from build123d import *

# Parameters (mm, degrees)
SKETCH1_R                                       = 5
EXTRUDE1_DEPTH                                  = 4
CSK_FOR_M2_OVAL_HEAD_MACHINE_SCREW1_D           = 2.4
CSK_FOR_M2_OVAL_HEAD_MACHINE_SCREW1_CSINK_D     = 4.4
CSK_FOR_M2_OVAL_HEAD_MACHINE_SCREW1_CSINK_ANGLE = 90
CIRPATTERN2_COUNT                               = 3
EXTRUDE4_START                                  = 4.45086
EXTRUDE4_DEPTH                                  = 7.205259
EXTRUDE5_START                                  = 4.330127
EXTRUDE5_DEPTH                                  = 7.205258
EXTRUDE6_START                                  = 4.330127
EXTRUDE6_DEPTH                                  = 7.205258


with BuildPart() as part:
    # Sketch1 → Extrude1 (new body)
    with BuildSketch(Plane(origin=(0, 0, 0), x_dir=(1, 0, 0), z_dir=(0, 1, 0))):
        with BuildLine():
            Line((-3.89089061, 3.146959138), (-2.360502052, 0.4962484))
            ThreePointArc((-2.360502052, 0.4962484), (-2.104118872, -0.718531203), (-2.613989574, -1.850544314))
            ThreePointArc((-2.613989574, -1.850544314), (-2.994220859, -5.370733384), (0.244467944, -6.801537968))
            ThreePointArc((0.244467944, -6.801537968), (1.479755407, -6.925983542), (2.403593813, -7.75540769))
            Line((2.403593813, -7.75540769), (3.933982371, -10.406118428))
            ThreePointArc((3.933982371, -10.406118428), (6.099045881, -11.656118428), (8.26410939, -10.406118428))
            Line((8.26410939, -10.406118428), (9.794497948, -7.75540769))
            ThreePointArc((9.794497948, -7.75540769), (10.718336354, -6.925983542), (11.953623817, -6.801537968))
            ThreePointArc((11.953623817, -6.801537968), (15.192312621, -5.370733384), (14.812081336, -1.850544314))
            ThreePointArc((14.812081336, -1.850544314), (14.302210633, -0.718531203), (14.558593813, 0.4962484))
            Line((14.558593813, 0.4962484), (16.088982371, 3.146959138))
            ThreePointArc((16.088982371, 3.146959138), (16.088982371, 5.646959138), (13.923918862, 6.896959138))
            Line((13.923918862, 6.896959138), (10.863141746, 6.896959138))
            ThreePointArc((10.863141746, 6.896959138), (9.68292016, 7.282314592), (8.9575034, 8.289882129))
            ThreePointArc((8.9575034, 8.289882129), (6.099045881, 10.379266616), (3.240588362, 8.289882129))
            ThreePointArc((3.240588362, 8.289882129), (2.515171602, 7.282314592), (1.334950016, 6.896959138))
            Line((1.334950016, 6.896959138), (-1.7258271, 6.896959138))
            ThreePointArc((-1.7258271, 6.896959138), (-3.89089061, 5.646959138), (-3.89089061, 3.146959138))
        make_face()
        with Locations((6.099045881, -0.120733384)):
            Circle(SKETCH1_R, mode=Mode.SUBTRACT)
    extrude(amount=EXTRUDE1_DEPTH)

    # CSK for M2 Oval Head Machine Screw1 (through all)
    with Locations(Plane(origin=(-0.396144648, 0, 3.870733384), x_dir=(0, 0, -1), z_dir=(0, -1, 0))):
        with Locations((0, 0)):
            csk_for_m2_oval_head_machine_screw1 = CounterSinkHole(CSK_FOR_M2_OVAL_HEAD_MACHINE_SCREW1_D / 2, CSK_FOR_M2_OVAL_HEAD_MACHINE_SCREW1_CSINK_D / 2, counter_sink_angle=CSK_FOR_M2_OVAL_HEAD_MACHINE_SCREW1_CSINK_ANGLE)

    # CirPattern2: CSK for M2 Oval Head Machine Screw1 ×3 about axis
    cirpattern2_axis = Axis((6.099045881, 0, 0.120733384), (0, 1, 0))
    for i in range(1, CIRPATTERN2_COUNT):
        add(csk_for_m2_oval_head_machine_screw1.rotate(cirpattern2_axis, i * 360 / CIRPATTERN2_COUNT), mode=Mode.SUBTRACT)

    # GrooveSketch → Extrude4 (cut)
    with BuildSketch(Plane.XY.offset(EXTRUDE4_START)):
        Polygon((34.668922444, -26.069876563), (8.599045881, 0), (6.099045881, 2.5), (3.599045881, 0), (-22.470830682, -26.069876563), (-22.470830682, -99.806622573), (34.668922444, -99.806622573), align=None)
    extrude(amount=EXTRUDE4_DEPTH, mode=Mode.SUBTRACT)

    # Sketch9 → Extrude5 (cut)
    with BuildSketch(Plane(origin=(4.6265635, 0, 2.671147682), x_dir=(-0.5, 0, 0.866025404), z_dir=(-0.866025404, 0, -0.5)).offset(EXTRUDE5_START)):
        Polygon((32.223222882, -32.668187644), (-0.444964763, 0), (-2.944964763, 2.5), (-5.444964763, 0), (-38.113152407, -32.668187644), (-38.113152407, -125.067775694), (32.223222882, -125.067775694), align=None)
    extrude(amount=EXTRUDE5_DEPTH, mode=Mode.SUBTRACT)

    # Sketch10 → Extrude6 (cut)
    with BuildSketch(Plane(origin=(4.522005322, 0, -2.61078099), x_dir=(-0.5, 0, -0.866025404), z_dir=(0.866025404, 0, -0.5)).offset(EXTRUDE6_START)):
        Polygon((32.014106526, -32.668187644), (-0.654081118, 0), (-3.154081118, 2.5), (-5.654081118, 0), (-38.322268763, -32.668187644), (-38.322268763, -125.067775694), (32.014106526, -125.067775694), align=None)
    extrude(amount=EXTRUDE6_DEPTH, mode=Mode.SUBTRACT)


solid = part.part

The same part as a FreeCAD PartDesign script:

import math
import FreeCAD as App
import Part
import Sketcher

V = App.Vector
Q = App.Units.Quantity


def add_polygon(sketch, points):
    """Adds a closed chain of lines whose ends are joined by coincident constraints."""
    first, n = sketch.GeometryCount, len(points)
    for a, b in zip(points, points[1:] + points[:1]):
        sketch.addGeometry(Part.LineSegment(App.Vector(*a, 0), App.Vector(*b, 0)), False)
    for i in range(n):
        sketch.addConstraint(Sketcher.Constraint("Coincident", first + i, 2, first + (i + 1) % n, 1))

doc = App.newDocument("Part")
body = doc.addObject("PartDesign::Body", "Body")

# Sketch on XZ plane
sketch1 = body.newObject("Sketcher::SketchObject", "Sketch")
sketch1.AttachmentSupport = (doc.getObject("XZ_Plane"), [""])
sketch1.MapMode = "FlatFace"
sketch1.addGeometry(Part.LineSegment(V(-3.890891, -3.146959, 0), V(-2.360502, -0.496248, 0)), False)
sketch1.addGeometry(Part.ArcOfCircle(Part.Circle(V(-4.092553, 0.503752, 0), V(0, 0, 1), 2), math.radians(-30), math.radians(42.329742)), False)
sketch1.addGeometry(Part.ArcOfCircle(Part.Circle(V(-0.396145, 3.870733, 0), V(0, 0, 1), 3), math.radians(77.670258), math.radians(222.329742)), False)
sketch1.addGeometry(Part.ArcOfCircle(Part.Circle(V(0.671543, 8.755408, 0), V(0, 0, 1), 2), math.radians(-102.329742), math.radians(-30)), False)
sketch1.addGeometry(Part.LineSegment(V(2.403594, 7.755408, 0), V(3.933982, 10.406118, 0)), False)
sketch1.addGeometry(Part.ArcOfCircle(Part.Circle(V(6.099046, 9.156118, 0), V(0, 0, 1), 2.5), math.radians(30), math.radians(150)), False)
sketch1.addGeometry(Part.LineSegment(V(8.264109, 10.406118, 0), V(9.794498, 7.755408, 0)), False)
sketch1.addGeometry(Part.ArcOfCircle(Part.Circle(V(11.526549, 8.755408, 0), V(0, 0, 1), 2), math.radians(-150), math.radians(-77.670258)), False)
sketch1.addGeometry(Part.ArcOfCircle(Part.Circle(V(12.594236, 3.870733, 0), V(0, 0, 1), 3), math.radians(-42.329742), math.radians(102.329742)), False)
sketch1.addGeometry(Part.ArcOfCircle(Part.Circle(V(16.290645, 0.503752, 0), V(0, 0, 1), 2), math.radians(137.670258), math.radians(210)), False)
sketch1.addGeometry(Part.LineSegment(V(14.558594, -0.496248, 0), V(16.088982, -3.146959, 0)), False)
sketch1.addGeometry(Part.ArcOfCircle(Part.Circle(V(13.923919, -4.396959, 0), V(0, 0, 1), 2.5), math.radians(-90), math.radians(30)), False)
sketch1.addGeometry(Part.LineSegment(V(13.923919, -6.896959, 0), V(10.863142, -6.896959, 0)), False)
sketch1.addGeometry(Part.ArcOfCircle(Part.Circle(V(10.863142, -8.896959, 0), V(0, 0, 1), 2), math.radians(90), math.radians(162.329742)), False)
sketch1.addGeometry(Part.ArcOfCircle(Part.Circle(V(6.099046, -7.379267, 0), V(0, 0, 1), 3), math.radians(-162.329742), math.radians(-17.670258)), False)
sketch1.addGeometry(Part.ArcOfCircle(Part.Circle(V(1.33495, -8.896959, 0), V(0, 0, 1), 2), math.radians(17.670258), math.radians(90)), False)
sketch1.addGeometry(Part.LineSegment(V(1.33495, -6.896959, 0), V(-1.725827, -6.896959, 0)), False)
sketch1.addGeometry(Part.ArcOfCircle(Part.Circle(V(-1.725827, -4.396959, 0), V(0, 0, 1), 2.5), math.radians(150), math.radians(270)), False)
sketch1.addGeometry(Part.Circle(V(6.099046, 0.120733, 0), V(0, 0, 1), 5), False)
sketch1.addConstraint(Sketcher.Constraint("Tangent", 0, 2, 1, 1))
sketch1.addConstraint(Sketcher.Constraint("Tangent", 1, 2, 2, 2))
sketch1.addConstraint(Sketcher.Constraint("Tangent", 2, 1, 3, 1))
sketch1.addConstraint(Sketcher.Constraint("Tangent", 3, 2, 4, 1))
sketch1.addConstraint(Sketcher.Constraint("Tangent", 4, 2, 5, 2))
sketch1.addConstraint(Sketcher.Constraint("Tangent", 5, 1, 6, 1))
sketch1.addConstraint(Sketcher.Constraint("Tangent", 6, 2, 7, 1))
sketch1.addConstraint(Sketcher.Constraint("Tangent", 7, 2, 8, 2))
sketch1.addConstraint(Sketcher.Constraint("Tangent", 8, 1, 9, 1))
sketch1.addConstraint(Sketcher.Constraint("Tangent", 9, 2, 10, 1))
sketch1.addConstraint(Sketcher.Constraint("Tangent", 10, 2, 11, 2))
sketch1.addConstraint(Sketcher.Constraint("Tangent", 11, 1, 12, 1))
sketch1.addConstraint(Sketcher.Constraint("Tangent", 12, 2, 13, 1))
sketch1.addConstraint(Sketcher.Constraint("Tangent", 13, 2, 14, 2))
sketch1.addConstraint(Sketcher.Constraint("Tangent", 14, 1, 15, 1))
sketch1.addConstraint(Sketcher.Constraint("Tangent", 15, 2, 16, 1))
sketch1.addConstraint(Sketcher.Constraint("Tangent", 16, 2, 17, 2))
sketch1.addConstraint(Sketcher.Constraint("Tangent", 17, 1, 0, 1))
sketch1.addConstraint(Sketcher.Constraint("Horizontal", 12))
sketch1.addConstraint(Sketcher.Constraint("Horizontal", 16))
sketch1.addConstraint(Sketcher.Constraint("Equal", 1, 3))
sketch1.addConstraint(Sketcher.Constraint("Equal", 3, 7))
sketch1.addConstraint(Sketcher.Constraint("Equal", 2, 8))
sketch1.addConstraint(Sketcher.Constraint("Equal", 7, 9))
sketch1.addConstraint(Sketcher.Constraint("Equal", 5, 11))
sketch1.addConstraint(Sketcher.Constraint("Equal", 9, 13))
sketch1.addConstraint(Sketcher.Constraint("Equal", 8, 14))
sketch1.addConstraint(Sketcher.Constraint("Equal", 13, 15))
sketch1.addConstraint(Sketcher.Constraint("Equal", 11, 17))
sketch1.addConstraint(Sketcher.Constraint("Parallel", 0, 4))
sketch1.addConstraint(Sketcher.Constraint("Parallel", 6, 10))
sketch1.addConstraint(Sketcher.Constraint("Horizontal", 3, 3, 7, 3))
sketch1.addConstraint(Sketcher.Constraint("Horizontal", 2, 3, 8, 3))
sketch1.addConstraint(Sketcher.Constraint("Horizontal", 1, 3, 9, 3))
sketch1.addConstraint(Sketcher.Constraint("Horizontal", 13, 3, 15, 3))
sketch1.addConstraint(Sketcher.Constraint("Horizontal", 4, 2, 5, 1))
sketch1.addConstraint(Sketcher.Constraint("Vertical", 5, 3, 14, 3))
sketch1.addConstraint(Sketcher.Constraint("Vertical", 14, 3, 18, 3))
sketch1.addConstraint(Sketcher.Constraint("Equal", 0, 4))
sketch1.addConstraint(Sketcher.Constraint("Diameter", 18, Q("10 mm")))
sketch1.addConstraint(Sketcher.Constraint("Radius", 1, Q("2 mm")))
sketch1.addConstraint(Sketcher.Constraint("Radius", 2, Q("3 mm")))
sketch1.addConstraint(Sketcher.Constraint("Radius", 5, Q("2.5 mm")))
sketch1.addConstraint(Sketcher.Constraint("Angle", 0, Q("60 deg")))
sketch1.addConstraint(Sketcher.Constraint("DistanceY", 14, 3, 18, 3, Q("7.5 mm")))
sketch1.addConstraint(Sketcher.Constraint("DistanceY", 14, 3, 8, 3, Q("11.25 mm")))
sketch1.addConstraint(Sketcher.Constraint("DistanceX", 1, 3, 5, 3, Q("10.191599 mm")))
sketch1.addConstraint(Sketcher.Constraint("DistanceX", 1, 3, 7, 3, Q("15.619102 mm")))
sketch1.addConstraint(Sketcher.Constraint("DistanceX", 8, 1, 10, 2, Q("1.276901 mm")))
sketch1.addConstraint(Sketcher.Constraint("DistanceY", -1, 1, 1, 3, Q("0.503752 mm")))
sketch1.addConstraint(Sketcher.Constraint("DistanceX", -1, 1, 7, 3, Q("11.526549 mm")))
pad1 = body.newObject("PartDesign::Pad", "Pad")
pad1.Profile = sketch1
pad1.Length = 4
pad1.Reversed = True

# Sketch on XZ plane
sketch2 = body.newObject("Sketcher::SketchObject", "Sketch001")
sketch2.AttachmentSupport = (doc.getObject("XZ_Plane"), [""])
sketch2.MapMode = "FlatFace"
sketch2.addGeometry(Part.Circle(V(-0.396145, 3.870733, 0), V(0, 0, 1), 1.2), False)
sketch2.addConstraint(Sketcher.Constraint("Diameter", 0, Q("2.4 mm")))
sketch2.addConstraint(Sketcher.Constraint("DistanceX", 0, 3, -1, 1, Q("0.396145 mm")))
sketch2.addConstraint(Sketcher.Constraint("DistanceY", -1, 1, 0, 3, Q("3.870733 mm")))
doc.recompute()
hole = body.newObject("PartDesign::Hole", "Hole")
hole.Profile = sketch2
hole.ThreadType = "None"
hole.Diameter = 2.4
hole.DepthType = "ThroughAll"
hole.HoleCutType = "Countersink"
hole.HoleCutDiameter = 4.4
hole.HoleCutCountersinkAngle = 90
doc.recompute()

datumline = body.newObject("PartDesign::Line", "DatumLine")
datumline.Placement = App.Placement(V(6.099046, 0, 0.120733), App.Rotation(V(0, 0, 1), V(0, 1, 0)))
polarpattern = body.newObject("PartDesign::PolarPattern", "PolarPattern")
polarpattern.Originals = [hole]
polarpattern.Axis = (datumline, [""])
polarpattern.Angle = 360
polarpattern.Occurrences = 3
body.Tip = polarpattern

# Sketch on XY plane
sketch3 = body.newObject("Sketcher::SketchObject", "Sketch002")
sketch3.AttachmentSupport = (doc.getObject("XY_Plane"), [""])
sketch3.MapMode = "FlatFace"
sketch3.AttachmentOffset = App.Placement(V(0, 0, 4.45086), App.Rotation())
add_polygon(sketch3, [(34.668922, -26.069877), (6.099046, 2.5), (-22.470831, -26.069877), (-22.470831, -99.806623), (34.668922, -99.806623)])  # lines 0-4
sketch3.addConstraint(Sketcher.Constraint("Vertical", 2))
sketch3.addConstraint(Sketcher.Constraint("Horizontal", 3))
sketch3.addConstraint(Sketcher.Constraint("Vertical", 4))
sketch3.addConstraint(Sketcher.Constraint("Perpendicular", 0, 1))
sketch3.addConstraint(Sketcher.Constraint("Horizontal", 1, 2, 4, 2))
sketch3.addConstraint(Sketcher.Constraint("Equal", 0, 1))
sketch3.addConstraint(Sketcher.Constraint("DistanceY", -1, 1, 0, 2, Q("2.5 mm")))
sketch3.addConstraint(Sketcher.Constraint("DistanceX", 3, 1, 3, 2, Q("57.139753 mm")))
sketch3.addConstraint(Sketcher.Constraint("DistanceY", 2, 2, 2, 1, Q("73.736746 mm")))
sketch3.addConstraint(Sketcher.Constraint("DistanceX", 1, 2, -1, 1, Q("22.470831 mm")))
pocket1 = body.newObject("PartDesign::Pocket", "Pocket")
pocket1.Profile = sketch3
pocket1.Length = 7.205259
pocket1.Reversed = True

# Sketch on an angled plane
sketch4 = body.newObject("Sketcher::SketchObject", "Sketch003")
sketch4.Placement = App.Placement(V(0.876564, 0, 0.506084), App.Rotation(V(-0.5, 0, 0.866025404), V(0, 1, 0), V(-0.866025404, 0, -0.5), "ZXY"))
add_polygon(sketch4, [(32.223223, -32.668188), (-0.444965, 0), (-2.944965, 2.5), (-38.113152, -32.668188), (-38.113152, -125.067776), (32.223223, -125.067776)])  # lines 0-5
sketch4.addConstraint(Sketcher.Constraint("Vertical", 3))
sketch4.addConstraint(Sketcher.Constraint("Horizontal", 4))
sketch4.addConstraint(Sketcher.Constraint("Vertical", 5))
sketch4.addConstraint(Sketcher.Constraint("PointOnObject", 0, 2, -1))
sketch4.addConstraint(Sketcher.Constraint("Parallel", 0, 1))
sketch4.addConstraint(Sketcher.Constraint("Perpendicular", 1, 2))
sketch4.addConstraint(Sketcher.Constraint("Horizontal", 2, 2, 5, 2))
sketch4.addConstraint(Sketcher.Constraint("Angle", 0, Q("135 deg")))
sketch4.addConstraint(Sketcher.Constraint("DistanceY", -1, 1, 1, 2, Q("2.5 mm")))
sketch4.addConstraint(Sketcher.Constraint("DistanceY", 3, 2, 3, 1, Q("92.399588 mm")))
sketch4.addConstraint(Sketcher.Constraint("DistanceX", 4, 1, 4, 2, Q("70.336375 mm")))
sketch4.addConstraint(Sketcher.Constraint("DistanceX", 0, 2, -1, 1, Q("0.444965 mm")))
pocket2 = body.newObject("PartDesign::Pocket", "Pocket001")
pocket2.Profile = sketch4
pocket2.Length = 7.205258
pocket2.Reversed = True

# Sketch on an angled plane
sketch5 = body.newObject("Sketcher::SketchObject", "Sketch004")
sketch5.Placement = App.Placement(V(8.272005, 0, -4.775844), App.Rotation(V(-0.5, 0, -0.866025404), V(0, 1, 0), V(0.866025404, 0, -0.5), "ZXY"))
add_polygon(sketch5, [(32.014107, -32.668188), (-3.154081, 2.5), (-5.654081, 0), (-38.322269, -32.668188), (-38.322269, -125.067776), (32.014107, -125.067776)])  # lines 0-5
sketch5.addConstraint(Sketcher.Constraint("Vertical", 3))
sketch5.addConstraint(Sketcher.Constraint("Horizontal", 4))
sketch5.addConstraint(Sketcher.Constraint("Vertical", 5))
sketch5.addConstraint(Sketcher.Constraint("PointOnObject", 1, 2, -1))
sketch5.addConstraint(Sketcher.Constraint("Perpendicular", 0, 1))
sketch5.addConstraint(Sketcher.Constraint("Parallel", 1, 2))
sketch5.addConstraint(Sketcher.Constraint("Horizontal", 2, 2, 5, 2))
sketch5.addConstraint(Sketcher.Constraint("Angle", 0, Q("135 deg")))
sketch5.addConstraint(Sketcher.Constraint("DistanceY", -1, 1, 0, 2, Q("2.5 mm")))
sketch5.addConstraint(Sketcher.Constraint("DistanceY", 3, 2, 3, 1, Q("92.399588 mm")))
sketch5.addConstraint(Sketcher.Constraint("DistanceX", 4, 1, 4, 2, Q("70.336375 mm")))
sketch5.addConstraint(Sketcher.Constraint("DistanceX", 0, 2, -1, 1, Q("3.154081 mm")))
pocket3 = body.newObject("PartDesign::Pocket", "Pocket002")
pocket3.Profile = sketch5
pocket3.Length = 7.205258
pocket3.Reversed = True

doc.recompute()
